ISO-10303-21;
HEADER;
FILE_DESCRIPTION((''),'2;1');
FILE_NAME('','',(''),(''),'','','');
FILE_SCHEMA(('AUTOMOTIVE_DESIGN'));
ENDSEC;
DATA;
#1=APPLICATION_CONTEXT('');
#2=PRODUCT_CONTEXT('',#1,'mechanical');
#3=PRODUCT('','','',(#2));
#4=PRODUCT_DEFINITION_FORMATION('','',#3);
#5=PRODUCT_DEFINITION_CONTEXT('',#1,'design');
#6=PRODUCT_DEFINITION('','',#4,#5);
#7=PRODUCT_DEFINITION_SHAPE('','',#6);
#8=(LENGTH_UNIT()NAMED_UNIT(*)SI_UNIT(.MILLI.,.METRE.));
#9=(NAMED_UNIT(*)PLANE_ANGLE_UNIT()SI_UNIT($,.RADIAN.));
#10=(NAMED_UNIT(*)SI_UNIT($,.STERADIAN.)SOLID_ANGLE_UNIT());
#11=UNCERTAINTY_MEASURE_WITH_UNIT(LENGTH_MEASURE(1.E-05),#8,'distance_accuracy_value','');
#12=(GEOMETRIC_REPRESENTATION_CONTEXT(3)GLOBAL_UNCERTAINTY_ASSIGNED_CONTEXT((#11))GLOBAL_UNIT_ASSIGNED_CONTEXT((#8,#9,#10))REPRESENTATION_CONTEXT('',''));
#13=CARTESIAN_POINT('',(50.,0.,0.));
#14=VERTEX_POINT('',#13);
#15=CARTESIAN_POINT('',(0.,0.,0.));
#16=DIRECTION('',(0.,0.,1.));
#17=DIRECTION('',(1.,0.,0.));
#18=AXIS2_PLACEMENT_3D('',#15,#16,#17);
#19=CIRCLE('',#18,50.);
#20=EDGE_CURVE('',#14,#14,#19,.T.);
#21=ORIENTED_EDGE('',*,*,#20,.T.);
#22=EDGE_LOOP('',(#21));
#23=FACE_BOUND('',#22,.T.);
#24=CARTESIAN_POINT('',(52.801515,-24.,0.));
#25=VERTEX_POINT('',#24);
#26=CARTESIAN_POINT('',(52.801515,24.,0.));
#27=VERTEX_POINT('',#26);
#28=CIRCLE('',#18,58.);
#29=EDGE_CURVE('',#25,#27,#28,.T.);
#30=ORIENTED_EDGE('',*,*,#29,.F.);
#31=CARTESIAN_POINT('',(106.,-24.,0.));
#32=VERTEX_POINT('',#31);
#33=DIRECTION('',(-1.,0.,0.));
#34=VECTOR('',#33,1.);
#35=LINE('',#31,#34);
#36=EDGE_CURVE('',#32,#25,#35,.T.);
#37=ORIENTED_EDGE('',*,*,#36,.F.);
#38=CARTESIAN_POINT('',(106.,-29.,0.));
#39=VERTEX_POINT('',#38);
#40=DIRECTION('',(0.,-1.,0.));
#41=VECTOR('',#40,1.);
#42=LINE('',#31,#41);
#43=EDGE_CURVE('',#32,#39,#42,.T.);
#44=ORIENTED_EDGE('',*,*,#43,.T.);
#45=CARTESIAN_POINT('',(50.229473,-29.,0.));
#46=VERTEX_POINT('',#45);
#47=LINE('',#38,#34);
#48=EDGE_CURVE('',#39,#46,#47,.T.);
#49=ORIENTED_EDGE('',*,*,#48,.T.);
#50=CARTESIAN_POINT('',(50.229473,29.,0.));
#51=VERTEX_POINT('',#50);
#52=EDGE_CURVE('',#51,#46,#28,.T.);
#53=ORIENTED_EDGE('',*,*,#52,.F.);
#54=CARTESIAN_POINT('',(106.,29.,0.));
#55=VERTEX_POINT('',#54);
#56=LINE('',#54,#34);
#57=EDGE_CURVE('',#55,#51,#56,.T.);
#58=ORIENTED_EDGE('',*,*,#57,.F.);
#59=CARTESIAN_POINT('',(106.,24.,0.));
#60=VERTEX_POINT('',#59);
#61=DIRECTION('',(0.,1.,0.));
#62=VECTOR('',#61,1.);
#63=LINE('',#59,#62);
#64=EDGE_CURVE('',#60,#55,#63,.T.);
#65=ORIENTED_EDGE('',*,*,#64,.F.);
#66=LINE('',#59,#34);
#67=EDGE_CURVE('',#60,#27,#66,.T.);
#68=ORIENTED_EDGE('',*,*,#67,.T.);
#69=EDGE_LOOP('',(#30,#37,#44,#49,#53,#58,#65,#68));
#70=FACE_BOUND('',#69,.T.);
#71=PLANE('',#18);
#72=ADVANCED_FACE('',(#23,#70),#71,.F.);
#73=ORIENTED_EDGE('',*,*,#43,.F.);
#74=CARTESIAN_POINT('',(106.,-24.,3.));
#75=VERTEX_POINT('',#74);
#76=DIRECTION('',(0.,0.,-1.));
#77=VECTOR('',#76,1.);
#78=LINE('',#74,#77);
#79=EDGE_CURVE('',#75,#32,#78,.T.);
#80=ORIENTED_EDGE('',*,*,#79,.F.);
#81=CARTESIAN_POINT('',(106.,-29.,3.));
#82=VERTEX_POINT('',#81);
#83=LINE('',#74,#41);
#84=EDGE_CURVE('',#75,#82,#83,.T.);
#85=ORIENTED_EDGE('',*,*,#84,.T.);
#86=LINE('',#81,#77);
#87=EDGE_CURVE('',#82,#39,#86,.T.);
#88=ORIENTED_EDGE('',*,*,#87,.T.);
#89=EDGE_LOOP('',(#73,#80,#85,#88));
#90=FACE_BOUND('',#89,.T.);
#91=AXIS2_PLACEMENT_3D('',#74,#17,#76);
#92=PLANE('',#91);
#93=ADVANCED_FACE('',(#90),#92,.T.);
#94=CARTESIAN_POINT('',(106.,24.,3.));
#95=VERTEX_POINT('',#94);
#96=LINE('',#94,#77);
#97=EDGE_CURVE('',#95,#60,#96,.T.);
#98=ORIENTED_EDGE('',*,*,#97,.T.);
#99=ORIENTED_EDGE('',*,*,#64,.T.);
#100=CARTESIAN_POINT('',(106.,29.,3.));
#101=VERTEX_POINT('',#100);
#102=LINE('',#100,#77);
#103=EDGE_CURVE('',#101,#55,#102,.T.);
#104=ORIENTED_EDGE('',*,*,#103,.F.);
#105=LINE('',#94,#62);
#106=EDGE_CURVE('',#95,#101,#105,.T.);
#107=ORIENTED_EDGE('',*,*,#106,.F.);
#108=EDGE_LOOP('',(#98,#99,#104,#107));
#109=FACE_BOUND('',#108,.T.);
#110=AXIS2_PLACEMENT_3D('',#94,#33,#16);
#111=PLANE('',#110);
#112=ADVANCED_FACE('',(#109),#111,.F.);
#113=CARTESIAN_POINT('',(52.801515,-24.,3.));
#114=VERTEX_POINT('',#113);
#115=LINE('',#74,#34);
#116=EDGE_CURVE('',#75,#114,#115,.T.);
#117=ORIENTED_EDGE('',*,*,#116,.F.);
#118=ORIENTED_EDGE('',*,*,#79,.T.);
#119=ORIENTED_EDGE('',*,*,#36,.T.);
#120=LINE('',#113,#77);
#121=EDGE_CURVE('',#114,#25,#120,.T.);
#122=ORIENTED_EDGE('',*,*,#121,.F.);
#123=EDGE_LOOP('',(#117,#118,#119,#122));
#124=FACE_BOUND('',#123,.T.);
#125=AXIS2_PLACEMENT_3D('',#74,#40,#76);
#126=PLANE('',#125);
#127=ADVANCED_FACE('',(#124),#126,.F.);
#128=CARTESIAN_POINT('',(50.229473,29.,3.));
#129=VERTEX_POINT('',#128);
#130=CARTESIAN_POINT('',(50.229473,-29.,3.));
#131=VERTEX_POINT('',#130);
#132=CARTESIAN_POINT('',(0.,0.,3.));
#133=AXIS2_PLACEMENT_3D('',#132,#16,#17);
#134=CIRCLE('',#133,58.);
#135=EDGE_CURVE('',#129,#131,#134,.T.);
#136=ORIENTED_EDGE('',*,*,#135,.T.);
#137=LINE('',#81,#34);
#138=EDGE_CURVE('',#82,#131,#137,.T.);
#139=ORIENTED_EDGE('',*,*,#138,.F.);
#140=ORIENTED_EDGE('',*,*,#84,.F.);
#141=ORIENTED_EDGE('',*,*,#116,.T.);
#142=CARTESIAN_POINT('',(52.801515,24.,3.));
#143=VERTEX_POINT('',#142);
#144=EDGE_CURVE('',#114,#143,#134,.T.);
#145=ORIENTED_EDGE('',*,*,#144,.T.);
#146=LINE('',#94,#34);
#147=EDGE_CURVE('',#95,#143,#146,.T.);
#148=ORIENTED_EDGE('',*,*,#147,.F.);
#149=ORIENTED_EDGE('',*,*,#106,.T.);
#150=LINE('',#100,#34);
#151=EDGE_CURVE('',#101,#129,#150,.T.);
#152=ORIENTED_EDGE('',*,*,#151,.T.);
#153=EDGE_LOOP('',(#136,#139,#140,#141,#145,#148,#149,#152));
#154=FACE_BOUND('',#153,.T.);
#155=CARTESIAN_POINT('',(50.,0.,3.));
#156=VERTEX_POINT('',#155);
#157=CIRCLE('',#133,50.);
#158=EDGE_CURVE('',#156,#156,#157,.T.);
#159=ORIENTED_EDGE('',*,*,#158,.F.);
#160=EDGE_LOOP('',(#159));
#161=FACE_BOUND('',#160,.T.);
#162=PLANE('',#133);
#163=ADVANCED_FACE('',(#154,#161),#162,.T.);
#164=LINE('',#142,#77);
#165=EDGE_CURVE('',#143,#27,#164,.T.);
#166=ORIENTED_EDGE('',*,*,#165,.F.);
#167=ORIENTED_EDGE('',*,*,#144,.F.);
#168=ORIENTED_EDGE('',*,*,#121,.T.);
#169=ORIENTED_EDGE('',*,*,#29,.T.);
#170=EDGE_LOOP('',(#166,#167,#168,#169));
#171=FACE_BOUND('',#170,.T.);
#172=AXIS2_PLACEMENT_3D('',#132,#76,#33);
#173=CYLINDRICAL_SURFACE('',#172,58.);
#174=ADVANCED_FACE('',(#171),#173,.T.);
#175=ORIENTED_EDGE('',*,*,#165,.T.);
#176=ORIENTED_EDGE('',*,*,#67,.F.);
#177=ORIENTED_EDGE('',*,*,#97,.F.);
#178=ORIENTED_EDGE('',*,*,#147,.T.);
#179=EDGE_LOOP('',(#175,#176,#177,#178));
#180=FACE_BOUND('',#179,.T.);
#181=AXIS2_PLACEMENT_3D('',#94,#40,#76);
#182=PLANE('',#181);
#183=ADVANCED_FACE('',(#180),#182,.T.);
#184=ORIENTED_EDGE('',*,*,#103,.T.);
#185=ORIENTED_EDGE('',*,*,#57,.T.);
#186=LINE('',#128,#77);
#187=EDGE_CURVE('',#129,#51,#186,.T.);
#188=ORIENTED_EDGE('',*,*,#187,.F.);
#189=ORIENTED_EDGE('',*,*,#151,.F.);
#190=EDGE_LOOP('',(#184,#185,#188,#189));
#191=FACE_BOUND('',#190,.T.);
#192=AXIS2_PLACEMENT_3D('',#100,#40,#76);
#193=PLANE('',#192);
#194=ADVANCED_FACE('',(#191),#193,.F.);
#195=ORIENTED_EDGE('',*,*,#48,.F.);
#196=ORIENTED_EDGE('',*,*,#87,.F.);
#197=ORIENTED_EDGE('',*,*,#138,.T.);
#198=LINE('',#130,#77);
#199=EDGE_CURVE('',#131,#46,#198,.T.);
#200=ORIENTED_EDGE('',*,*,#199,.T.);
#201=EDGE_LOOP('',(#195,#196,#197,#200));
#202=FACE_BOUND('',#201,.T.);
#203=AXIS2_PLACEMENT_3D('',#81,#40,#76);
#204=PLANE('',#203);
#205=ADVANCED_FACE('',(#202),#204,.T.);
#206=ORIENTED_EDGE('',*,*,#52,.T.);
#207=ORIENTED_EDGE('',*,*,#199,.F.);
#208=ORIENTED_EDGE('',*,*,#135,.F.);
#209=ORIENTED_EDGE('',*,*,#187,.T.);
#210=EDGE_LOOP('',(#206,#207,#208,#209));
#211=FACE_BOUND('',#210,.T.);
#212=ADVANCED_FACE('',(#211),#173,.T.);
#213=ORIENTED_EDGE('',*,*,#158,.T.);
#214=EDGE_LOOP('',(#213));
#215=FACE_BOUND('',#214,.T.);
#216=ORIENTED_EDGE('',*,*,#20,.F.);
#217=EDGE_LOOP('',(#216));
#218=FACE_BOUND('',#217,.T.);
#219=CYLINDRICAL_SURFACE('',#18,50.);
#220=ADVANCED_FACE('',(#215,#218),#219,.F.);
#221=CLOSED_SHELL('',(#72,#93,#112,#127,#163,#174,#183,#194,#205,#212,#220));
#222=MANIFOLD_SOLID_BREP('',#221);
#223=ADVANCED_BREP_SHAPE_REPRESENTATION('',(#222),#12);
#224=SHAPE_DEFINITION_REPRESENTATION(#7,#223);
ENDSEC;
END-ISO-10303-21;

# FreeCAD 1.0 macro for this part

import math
import FreeCAD as App
import Part
import Sketcher

doc = App.newDocument("Part")
body = doc.addObject("PartDesign::Body", "Body")

sketch1 = body.newObject("Sketcher::SketchObject", "Sketch")
sketch1.AttachmentSupport = (doc.getObject("XY_Plane"), [""])
sketch1.MapMode = "FlatFace"
sketch1.addGeometry([
    Part.LineSegment(App.Vector(53, 24, 0), App.Vector(106, 24, 0)),
    Part.LineSegment(App.Vector(106, 24, 0), App.Vector(106, 29, 0)),
    Part.LineSegment(App.Vector(106, 29, 0), App.Vector(50, 29, 0)),
    Part.ArcOfCircle(Part.Circle(App.Vector(0, 0, 0), App.Vector(0, 0, 1), 58), math.radians(30), math.radians(330)),
    Part.LineSegment(App.Vector(50, -29, 0), App.Vector(106, -29, 0)),
    Part.LineSegment(App.Vector(106, -29, 0), App.Vector(106, -24, 0)),
    Part.LineSegment(App.Vector(106, -24, 0), App.Vector(53, -24, 0)),
    Part.ArcOfCircle(Part.Circle(App.Vector(0, 0, 0), App.Vector(0, 0, 1), 58), math.radians(-24), math.radians(24)),
], False)
sketch1.addConstraint([
    Sketcher.Constraint("Coincident", 0, 2, 1, 1),
    Sketcher.Constraint("Coincident", 1, 2, 2, 1),
    Sketcher.Constraint("Coincident", 2, 2, 3, 1),
    Sketcher.Constraint("Coincident", 3, 2, 4, 1),
    Sketcher.Constraint("Coincident", 4, 2, 5, 1),
    Sketcher.Constraint("Coincident", 5, 2, 6, 1),
    Sketcher.Constraint("Coincident", 6, 2, 7, 1),
    Sketcher.Constraint("Coincident", 7, 2, 0, 1),
    Sketcher.Constraint("Horizontal", 0),
    Sketcher.Constraint("Vertical", 1),
    Sketcher.Constraint("Horizontal", 2),
    Sketcher.Constraint("Horizontal", 4),
    Sketcher.Constraint("Vertical", 5),
    Sketcher.Constraint("Horizontal", 6),
    Sketcher.Constraint("Coincident", 3, 3, -1, 1),
    Sketcher.Constraint("Coincident", 7, 3, -1, 1),
    Sketcher.Constraint("Equal", 3, 7),
    Sketcher.Constraint("Symmetric", 1, 2, 4, 2, -1),
    Sketcher.Constraint("Vertical", 6, 2, 7, 2),
    Sketcher.Constraint("Radius", 3, 58.0),
    Sketcher.Constraint("DistanceY", 1, 1, 1, 2, 5.0),
    Sketcher.Constraint("DistanceX", -1, 1, 0, 2, 106.0),
    Sketcher.Constraint("DistanceY", -1, 1, 0, 2, 24.0),
])
pad1 = body.newObject("PartDesign::Pad", "Pad")
pad1.Profile = sketch1
pad1.Length = 3

sketch2 = body.newObject("Sketcher::SketchObject", "Sketch001")
sketch2.AttachmentSupport = (doc.getObject("XY_Plane"), [""])
sketch2.MapMode = "FlatFace"
sketch2.AttachmentOffset = App.Placement(App.Vector(0, 0, 3), App.Rotation())
sketch2.addGeometry(Part.Circle(App.Vector(0, 0, 0), App.Vector(0, 0, 1), 50), False)
sketch2.addConstraint([
    Sketcher.Constraint("Coincident", 0, 3, -1, 1),
    Sketcher.Constraint("Diameter", 0, 100.0),
])
pocket1 = body.newObject("PartDesign::Pocket", "Pocket")
pocket1.Profile = sketch2
pocket1.Length = 3

doc.recompute()
